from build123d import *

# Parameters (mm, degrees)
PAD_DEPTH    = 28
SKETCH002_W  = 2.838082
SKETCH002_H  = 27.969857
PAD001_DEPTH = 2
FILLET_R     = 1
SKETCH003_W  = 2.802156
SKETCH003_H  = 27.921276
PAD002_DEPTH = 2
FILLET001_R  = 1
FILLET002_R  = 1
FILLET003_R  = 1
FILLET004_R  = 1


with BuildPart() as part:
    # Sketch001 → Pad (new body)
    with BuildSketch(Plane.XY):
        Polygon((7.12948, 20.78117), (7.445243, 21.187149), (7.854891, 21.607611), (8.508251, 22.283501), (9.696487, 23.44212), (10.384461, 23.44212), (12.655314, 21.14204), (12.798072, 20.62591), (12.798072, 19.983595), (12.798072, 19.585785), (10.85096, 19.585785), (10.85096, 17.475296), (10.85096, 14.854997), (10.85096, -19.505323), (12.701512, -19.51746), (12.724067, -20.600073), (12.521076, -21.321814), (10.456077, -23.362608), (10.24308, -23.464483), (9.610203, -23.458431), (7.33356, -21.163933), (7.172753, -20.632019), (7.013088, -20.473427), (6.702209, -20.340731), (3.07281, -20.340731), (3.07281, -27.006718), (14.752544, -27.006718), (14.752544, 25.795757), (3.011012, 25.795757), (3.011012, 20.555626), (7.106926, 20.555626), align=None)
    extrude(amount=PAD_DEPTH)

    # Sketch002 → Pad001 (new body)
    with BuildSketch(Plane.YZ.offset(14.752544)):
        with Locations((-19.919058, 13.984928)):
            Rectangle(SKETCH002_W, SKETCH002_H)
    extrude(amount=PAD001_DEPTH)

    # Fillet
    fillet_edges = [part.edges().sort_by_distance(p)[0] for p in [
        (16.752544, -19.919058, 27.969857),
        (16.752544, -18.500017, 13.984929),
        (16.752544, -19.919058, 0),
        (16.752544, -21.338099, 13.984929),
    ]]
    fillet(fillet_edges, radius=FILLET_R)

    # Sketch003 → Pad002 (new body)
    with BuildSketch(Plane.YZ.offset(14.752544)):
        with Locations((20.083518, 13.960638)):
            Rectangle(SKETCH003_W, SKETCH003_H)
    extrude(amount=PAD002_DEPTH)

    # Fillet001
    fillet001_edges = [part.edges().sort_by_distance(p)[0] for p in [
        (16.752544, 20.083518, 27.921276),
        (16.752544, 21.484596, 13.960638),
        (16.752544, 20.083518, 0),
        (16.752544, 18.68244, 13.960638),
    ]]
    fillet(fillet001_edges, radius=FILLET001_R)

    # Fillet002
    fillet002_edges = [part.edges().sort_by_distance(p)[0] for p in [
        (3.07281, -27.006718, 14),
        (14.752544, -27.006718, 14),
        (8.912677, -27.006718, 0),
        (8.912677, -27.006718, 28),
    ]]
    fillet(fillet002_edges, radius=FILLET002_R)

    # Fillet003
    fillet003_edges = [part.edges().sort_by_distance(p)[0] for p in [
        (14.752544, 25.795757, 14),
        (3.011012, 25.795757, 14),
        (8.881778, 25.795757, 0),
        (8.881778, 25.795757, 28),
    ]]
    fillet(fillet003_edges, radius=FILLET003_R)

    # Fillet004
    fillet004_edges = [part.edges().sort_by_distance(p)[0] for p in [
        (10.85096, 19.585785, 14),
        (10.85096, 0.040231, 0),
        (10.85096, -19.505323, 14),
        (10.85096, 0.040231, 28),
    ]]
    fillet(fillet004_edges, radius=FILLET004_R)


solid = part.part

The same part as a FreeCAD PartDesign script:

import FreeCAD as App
import Part
import Sketcher
Q = App.Units.Quantity


def edges_at(feature, points):
    """Names of the edges that pass closest to the given points."""
    edges = feature.Shape.Edges
    near = lambda p: min(range(len(edges)), key=lambda i: edges[i].distToShape(Part.Vertex(*p))[0])
    return sorted({f"Edge{near(p) + 1}" for p in points})

doc = App.newDocument("Part")
body = doc.addObject("PartDesign::Body", "Body")

sketch1 = doc.addObject("Sketcher::SketchObject", "Sketch")
body.addObject(sketch1)
sketch1.AttachmentSupport = (doc.XY_Plane, [""])
sketch1.MapMode = "FlatFace"
sketch1.addGeometry(Part.LineSegment(App.Vector(7.12948, 20.78117, 0), App.Vector(7.445243, 21.187149, 0)), False)
sketch1.addGeometry(Part.LineSegment(App.Vector(7.445243, 21.187149, 0), App.Vector(7.854891, 21.607611, 0)), False)
sketch1.addGeometry(Part.LineSegment(App.Vector(7.854891, 21.607611, 0), App.Vector(8.508251, 22.283501, 0)), False)
sketch1.addGeometry(Part.LineSegment(App.Vector(8.508251, 22.283501, 0), App.Vector(9.696487, 23.44212, 0)), False)
sketch1.addGeometry(Part.LineSegment(App.Vector(9.696487, 23.44212, 0), App.Vector(10.384461, 23.44212, 0)), False)
sketch1.addGeometry(Part.LineSegment(App.Vector(10.384461, 23.44212, 0), App.Vector(12.655314, 21.14204, 0)), False)
sketch1.addGeometry(Part.LineSegment(App.Vector(12.655314, 21.14204, 0), App.Vector(12.798072, 20.62591, 0)), False)
sketch1.addGeometry(Part.LineSegment(App.Vector(12.798072, 20.62591, 0), App.Vector(12.798072, 19.585785, 0)), False)
sketch1.addGeometry(Part.LineSegment(App.Vector(12.798072, 19.585785, 0), App.Vector(10.85096, 19.585785, 0)), False)
sketch1.addGeometry(Part.LineSegment(App.Vector(10.85096, 19.585785, 0), App.Vector(10.85096, -19.505323, 0)), False)
sketch1.addGeometry(Part.LineSegment(App.Vector(10.85096, -19.505323, 0), App.Vector(12.701512, -19.51746, 0)), False)
sketch1.addGeometry(Part.LineSegment(App.Vector(12.701512, -19.51746, 0), App.Vector(12.724067, -20.600073, 0)), False)
sketch1.addGeometry(Part.LineSegment(App.Vector(12.724067, -20.600073, 0), App.Vector(12.521076, -21.321814, 0)), False)
sketch1.addGeometry(Part.LineSegment(App.Vector(12.521076, -21.321814, 0), App.Vector(10.456077, -23.362608, 0)), False)
sketch1.addGeometry(Part.LineSegment(App.Vector(10.456077, -23.362608, 0), App.Vector(10.24308, -23.464483, 0)), False)
sketch1.addGeometry(Part.LineSegment(App.Vector(10.24308, -23.464483, 0), App.Vector(9.610203, -23.458431, 0)), False)
sketch1.addGeometry(Part.LineSegment(App.Vector(9.610203, -23.458431, 0), App.Vector(7.33356, -21.163933, 0)), False)
sketch1.addGeometry(Part.LineSegment(App.Vector(7.33356, -21.163933, 0), App.Vector(7.172753, -20.632019, 0)), False)
sketch1.addGeometry(Part.LineSegment(App.Vector(7.172753, -20.632019, 0), App.Vector(7.013088, -20.473427, 0)), False)
sketch1.addGeometry(Part.LineSegment(App.Vector(7.013088, -20.473427, 0), App.Vector(6.702209, -20.340731, 0)), False)
sketch1.addGeometry(Part.LineSegment(App.Vector(6.702209, -20.340731, 0), App.Vector(3.07281, -20.340731, 0)), False)
sketch1.addGeometry(Part.LineSegment(App.Vector(3.07281, -20.340731, 0), App.Vector(3.07281, -27.006718, 0)), False)
sketch1.addGeometry(Part.LineSegment(App.Vector(3.07281, -27.006718, 0), App.Vector(14.752544, -27.006718, 0)), False)
sketch1.addGeometry(Part.LineSegment(App.Vector(14.752544, -27.006718, 0), App.Vector(14.752544, 25.795757, 0)), False)
sketch1.addGeometry(Part.LineSegment(App.Vector(14.752544, 25.795757, 0), App.Vector(3.011012, 25.795757, 0)), False)
sketch1.addGeometry(Part.LineSegment(App.Vector(3.011012, 25.795757, 0), App.Vector(3.011012, 20.555626, 0)), False)
sketch1.addGeometry(Part.LineSegment(App.Vector(3.011012, 20.555626, 0), App.Vector(7.106926, 20.555626, 0)), False)
sketch1.addGeometry(Part.LineSegment(App.Vector(7.106926, 20.555626, 0), App.Vector(7.12948, 20.78117, 0)), False)
sketch1.addConstraint(Sketcher.Constraint("Coincident", 0, 2, 1, 1))
sketch1.addConstraint(Sketcher.Constraint("Coincident", 1, 2, 2, 1))
sketch1.addConstraint(Sketcher.Constraint("Coincident", 2, 2, 3, 1))
sketch1.addConstraint(Sketcher.Constraint("Coincident", 3, 2, 4, 1))
sketch1.addConstraint(Sketcher.Constraint("Coincident", 4, 2, 5, 1))
sketch1.addConstraint(Sketcher.Constraint("Coincident", 5, 2, 6, 1))
sketch1.addConstraint(Sketcher.Constraint("Coincident", 6, 2, 7, 1))
sketch1.addConstraint(Sketcher.Constraint("Coincident", 7, 2, 8, 1))
sketch1.addConstraint(Sketcher.Constraint("Coincident", 8, 2, 9, 1))
sketch1.addConstraint(Sketcher.Constraint("Coincident", 9, 2, 10, 1))
sketch1.addConstraint(Sketcher.Constraint("Coincident", 10, 2, 11, 1))
sketch1.addConstraint(Sketcher.Constraint("Coincident", 11, 2, 12, 1))
sketch1.addConstraint(Sketcher.Constraint("Coincident", 12, 2, 13, 1))
sketch1.addConstraint(Sketcher.Constraint("Coincident", 13, 2, 14, 1))
sketch1.addConstraint(Sketcher.Constraint("Coincident", 14, 2, 15, 1))
sketch1.addConstraint(Sketcher.Constraint("Coincident", 15, 2, 16, 1))
sketch1.addConstraint(Sketcher.Constraint("Coincident", 16, 2, 17, 1))
sketch1.addConstraint(Sketcher.Constraint("Coincident", 17, 2, 18, 1))
sketch1.addConstraint(Sketcher.Constraint("Coincident", 18, 2, 19, 1))
sketch1.addConstraint(Sketcher.Constraint("Coincident", 19, 2, 20, 1))
sketch1.addConstraint(Sketcher.Constraint("Coincident", 20, 2, 21, 1))
sketch1.addConstraint(Sketcher.Constraint("Coincident", 21, 2, 22, 1))
sketch1.addConstraint(Sketcher.Constraint("Coincident", 22, 2, 23, 1))
sketch1.addConstraint(Sketcher.Constraint("Coincident", 23, 2, 24, 1))
sketch1.addConstraint(Sketcher.Constraint("Coincident", 24, 2, 25, 1))
sketch1.addConstraint(Sketcher.Constraint("Coincident", 25, 2, 26, 1))
sketch1.addConstraint(Sketcher.Constraint("Coincident", 26, 2, 27, 1))
sketch1.addConstraint(Sketcher.Constraint("Coincident", 27, 2, 0, 1))
sketch1.addConstraint(Sketcher.Constraint("Horizontal", 4))
sketch1.addConstraint(Sketcher.Constraint("Vertical", 7))
sketch1.addConstraint(Sketcher.Constraint("Horizontal", 8))
sketch1.addConstraint(Sketcher.Constraint("Vertical", 9))
sketch1.addConstraint(Sketcher.Constraint("Horizontal", 20))
sketch1.addConstraint(Sketcher.Constraint("Vertical", 21))
sketch1.addConstraint(Sketcher.Constraint("Horizontal", 22))
sketch1.addConstraint(Sketcher.Constraint("Vertical", 23))
sketch1.addConstraint(Sketcher.Constraint("Horizontal", 24))
sketch1.addConstraint(Sketcher.Constraint("Vertical", 25))
sketch1.addConstraint(Sketcher.Constraint("Horizontal", 26))
sketch1.addConstraint(Sketcher.Constraint("DistanceX", 20, 2, 20, 1, Q("3.629399 mm")))
sketch1.addConstraint(Sketcher.Constraint("DistanceX", 13, 2, 12, 2, Q("2.064999 mm")))
sketch1.addConstraint(Sketcher.Constraint("DistanceX", 8, 2, 8, 1, Q("1.947112 mm")))
sketch1.addConstraint(Sketcher.Constraint("DistanceY", 9, 2, 9, 1, Q("39.091108 mm")))
sketch1.addConstraint(Sketcher.Constraint("DistanceY", 25, 2, 25, 1, Q("5.240131 mm")))
sketch1.addConstraint(Sketcher.Constraint("DistanceY", -1, 1, 2, 2, Q("22.283501 mm")))
sketch1.addConstraint(Sketcher.Constraint("DistanceY", 6, 2, 1, 2, Q("0.981701 mm")))
sketch1.addConstraint(Sketcher.Constraint("DistanceY", 10, 2, 5, 2, Q("40.6595 mm")))
sketch1.addConstraint(Sketcher.Constraint("DistanceY", 12, 2, 7, 2, Q("40.907599 mm")))
sketch1.addConstraint(Sketcher.Constraint("DistanceY", 15, 2, 16, 2, Q("2.294498 mm")))
sketch1.addConstraint(Sketcher.Constraint("DistanceX", 16, 2, 9, 2, Q("3.5174 mm")))
sketch1.addConstraint(Sketcher.Constraint("DistanceY", 16, 2, 19, 2, Q("0.823202 mm")))
sketch1.addConstraint(Sketcher.Constraint("DistanceY", 21, 2, 17, 2, Q("6.374699 mm")))
sketch1.addConstraint(Sketcher.Constraint("Distance", 0, Q("0.51432 mm")))
sketch1.addConstraint(Sketcher.Constraint("Distance", 3, Q("1.659609 mm")))
sketch1.addConstraint(Sketcher.Constraint("Distance", 6, Q("0.535509 mm")))
sketch1.addConstraint(Sketcher.Constraint("Distance", 10, Q("1.850592 mm")))
sketch1.addConstraint(Sketcher.Constraint("Distance", 16, Q("3.232309 mm")))
sketch1.addConstraint(Sketcher.Constraint("Distance", 17, Q("0.55569 mm")))
sketch1.addConstraint(Sketcher.Constraint("Distance", 27, Q("0.226669 mm")))
sketch1.addConstraint(Sketcher.Constraint("DistanceX", 4, 1, 4, 2, Q("0.687974 mm")))
sketch1.addConstraint(Sketcher.Constraint("DistanceX", 22, 1, 22, 2, Q("11.679734 mm")))
sketch1.addConstraint(Sketcher.Constraint("DistanceX", 24, 2, 24, 1, Q("11.741532 mm")))
sketch1.addConstraint(Sketcher.Constraint("DistanceX", 26, 1, 26, 2, Q("4.095914 mm")))
sketch1.addConstraint(Sketcher.Constraint("DistanceY", 7, 2, 7, 1, Q("1.040125 mm")))
sketch1.addConstraint(Sketcher.Constraint("DistanceY", 21, 2, 21, 1, Q("6.665987 mm")))
sketch1.addConstraint(Sketcher.Constraint("DistanceY", 23, 1, 23, 2, Q("52.802475 mm")))
sketch1.addConstraint(Sketcher.Constraint("DistanceY", -1, 1, 0, 2, Q("21.187149 mm")))
sketch1.addConstraint(Sketcher.Constraint("DistanceX", -1, 1, 1, 2, Q("7.854891 mm")))
sketch1.addConstraint(Sketcher.Constraint("DistanceY", -1, 1, 1, 2, Q("21.607611 mm")))
sketch1.addConstraint(Sketcher.Constraint("DistanceX", -1, 1, 2, 2, Q("8.508251 mm")))
sketch1.addConstraint(Sketcher.Constraint("DistanceY", -1, 1, 3, 2, Q("23.44212 mm")))
sketch1.addConstraint(Sketcher.Constraint("DistanceY", -1, 1, 5, 2, Q("21.14204 mm")))
sketch1.addConstraint(Sketcher.Constraint("DistanceX", -1, 1, 8, 2, Q("10.85096 mm")))
sketch1.addConstraint(Sketcher.Constraint("DistanceY", 13, 2, -1, 1, Q("23.362608 mm")))
sketch1.addConstraint(Sketcher.Constraint("DistanceX", -1, 1, 14, 2, Q("10.24308 mm")))
sketch1.addConstraint(Sketcher.Constraint("DistanceY", 15, 2, -1, 1, Q("23.458431 mm")))
sketch1.addConstraint(Sketcher.Constraint("DistanceX", -1, 1, 19, 2, Q("6.702209 mm")))
sketch1.addConstraint(Sketcher.Constraint("DistanceX", -1, 1, 27, 2, Q("7.12948 mm")))
sketch1.addConstraint(Sketcher.Constraint("DistanceY", 11, 2, 9, 2, Q("1.09475 mm")))
sketch1.addConstraint(Sketcher.Constraint("DistanceX", 12, 2, 11, 2, Q("0.202991 mm")))
sketch1.addConstraint(Sketcher.Constraint("DistanceY", 14, 2, 12, 2, Q("2.142669 mm")))
sketch1.addConstraint(Sketcher.Constraint("DistanceY", 17, 2, 18, 2, Q("0.158592 mm")))
sketch1.addConstraint(Sketcher.Constraint("DistanceX", 19, 2, 18, 2, Q("0.310879 mm")))
sketch1.addConstraint(Sketcher.Constraint("Distance", 11, Q("1.082848 mm")))
pad1 = doc.addObject("PartDesign::Pad", "Pad")
body.addObject(pad1)
pad1.Profile = sketch1
pad1.Length = 28

sketch2 = doc.addObject("Sketcher::SketchObject", "Sketch001")
body.addObject(sketch2)
sketch2.AttachmentSupport = (doc.YZ_Plane, [""])
sketch2.MapMode = "FlatFace"
sketch2.AttachmentOffset = App.Placement(App.Vector(0, 0, 14.752544), App.Rotation())
sketch2.addGeometry(Part.LineSegment(App.Vector(-21.338099, 27.969856, 0), App.Vector(-21.338099, 0, 0)), False)
sketch2.addGeometry(Part.LineSegment(App.Vector(-21.338099, 0, 0), App.Vector(-18.500017, 0, 0)), False)
sketch2.addGeometry(Part.LineSegment(App.Vector(-18.500017, 0, 0), App.Vector(-18.500017, 27.969856, 0)), False)
sketch2.addGeometry(Part.LineSegment(App.Vector(-18.500017, 27.969856, 0), App.Vector(-21.338099, 27.969856, 0)), False)
sketch2.addConstraint(Sketcher.Constraint("Coincident", 0, 2, 1, 1))
sketch2.addConstraint(Sketcher.Constraint("Coincident", 1, 2, 2, 1))
sketch2.addConstraint(Sketcher.Constraint("Coincident", 2, 2, 3, 1))
sketch2.addConstraint(Sketcher.Constraint("Coincident", 3, 2, 0, 1))
sketch2.addConstraint(Sketcher.Constraint("Vertical", 0))
sketch2.addConstraint(Sketcher.Constraint("Horizontal", 1))
sketch2.addConstraint(Sketcher.Constraint("Vertical", 2))
sketch2.addConstraint(Sketcher.Constraint("Horizontal", 3))
sketch2.addConstraint(Sketcher.Constraint("PointOnObject", 0, 2, -1))
sketch2.addConstraint(Sketcher.Constraint("DistanceX", 1, 1, 1, 2, Q("2.838082 mm")))
sketch2.addConstraint(Sketcher.Constraint("DistanceX", 0, 2, -1, 1, Q("21.338099 mm")))
sketch2.addConstraint(Sketcher.Constraint("DistanceY", 0, 2, 0, 1, Q("27.969857 mm")))
pad2 = doc.addObject("PartDesign::Pad", "Pad001")
body.addObject(pad2)
pad2.Profile = sketch2
pad2.Length = 2
doc.recompute()

fillet = doc.addObject("PartDesign::Fillet", "Fillet")
body.addObject(fillet)
fillet.Base = (pad2, edges_at(pad2, [
    (16.753, -19.919, 27.97),
    (16.753, -18.5, 13.985),
    (16.753, -19.919, 0),
    (16.753, -21.338, 13.985),
]))
fillet.Radius = 1

sketch3 = doc.addObject("Sketcher::SketchObject", "Sketch002")
body.addObject(sketch3)
sketch3.AttachmentSupport = (doc.YZ_Plane, [""])
sketch3.MapMode = "FlatFace"
sketch3.AttachmentOffset = App.Placement(App.Vector(0, 0, 14.752544), App.Rotation())
sketch3.addGeometry(Part.LineSegment(App.Vector(18.68244, 27.921276, 0), App.Vector(18.68244, 0, 0)), False)
sketch3.addGeometry(Part.LineSegment(App.Vector(18.68244, 0, 0), App.Vector(21.484596, 0, 0)), False)
sketch3.addGeometry(Part.LineSegment(App.Vector(21.484596, 0, 0), App.Vector(21.484596, 27.921276, 0)), False)
sketch3.addGeometry(Part.LineSegment(App.Vector(21.484596, 27.921276, 0), App.Vector(18.68244, 27.921276, 0)), False)
sketch3.addConstraint(Sketcher.Constraint("Coincident", 0, 2, 1, 1))
sketch3.addConstraint(Sketcher.Constraint("Coincident", 1, 2, 2, 1))
sketch3.addConstraint(Sketcher.Constraint("Coincident", 2, 2, 3, 1))
sketch3.addConstraint(Sketcher.Constraint("Coincident", 3, 2, 0, 1))
sketch3.addConstraint(Sketcher.Constraint("Vertical", 0))
sketch3.addConstraint(Sketcher.Constraint("Horizontal", 1))
sketch3.addConstraint(Sketcher.Constraint("Vertical", 2))
sketch3.addConstraint(Sketcher.Constraint("Horizontal", 3))
sketch3.addConstraint(Sketcher.Constraint("PointOnObject", 0, 2, -1))
sketch3.addConstraint(Sketcher.Constraint("DistanceX", 1, 1, 1, 2, Q("2.802156 mm")))
sketch3.addConstraint(Sketcher.Constraint("DistanceY", 0, 2, 0, 1, Q("27.921276 mm")))
sketch3.addConstraint(Sketcher.Constraint("DistanceX", -1, 1, 0, 2, Q("18.68244 mm")))
pad3 = doc.addObject("PartDesign::Pad", "Pad002")
body.addObject(pad3)
pad3.Profile = sketch3
pad3.Length = 2
doc.recompute()

fillet2 = doc.addObject("PartDesign::Fillet", "Fillet001")
body.addObject(fillet2)
fillet2.Base = (pad3, edges_at(pad3, [
    (16.753, 20.084, 27.921),
    (16.753, 21.485, 13.961),
    (16.753, 20.084, 0),
    (16.753, 18.682, 13.961),
]))
fillet2.Radius = 1
doc.recompute()

fillet3 = doc.addObject("PartDesign::Fillet", "Fillet002")
body.addObject(fillet3)
fillet3.Base = (fillet2, edges_at(fillet2, [
    (3.073, -27.007, 14),
    (14.753, -27.007, 14),
    (8.913, -27.007, 0),
    (8.913, -27.007, 28),
]))
fillet3.Radius = 1
doc.recompute()

fillet4 = doc.addObject("PartDesign::Fillet", "Fillet003")
body.addObject(fillet4)
fillet4.Base = (fillet3, edges_at(fillet3, [
    (14.753, 25.796, 14),
    (3.011, 25.796, 14),
    (8.882, 25.796, 0),
    (8.882, 25.796, 28),
]))
fillet4.Radius = 1
doc.recompute()

fillet5 = doc.addObject("PartDesign::Fillet", "Fillet004")
body.addObject(fillet5)
fillet5.Base = (fillet4, edges_at(fillet4, [
    (10.851, 19.586, 14),
    (10.851, 0.04, 0),
    (10.851, -19.505, 14),
    (10.851, 0.04, 28),
]))
fillet5.Radius = 1

doc.recompute()
